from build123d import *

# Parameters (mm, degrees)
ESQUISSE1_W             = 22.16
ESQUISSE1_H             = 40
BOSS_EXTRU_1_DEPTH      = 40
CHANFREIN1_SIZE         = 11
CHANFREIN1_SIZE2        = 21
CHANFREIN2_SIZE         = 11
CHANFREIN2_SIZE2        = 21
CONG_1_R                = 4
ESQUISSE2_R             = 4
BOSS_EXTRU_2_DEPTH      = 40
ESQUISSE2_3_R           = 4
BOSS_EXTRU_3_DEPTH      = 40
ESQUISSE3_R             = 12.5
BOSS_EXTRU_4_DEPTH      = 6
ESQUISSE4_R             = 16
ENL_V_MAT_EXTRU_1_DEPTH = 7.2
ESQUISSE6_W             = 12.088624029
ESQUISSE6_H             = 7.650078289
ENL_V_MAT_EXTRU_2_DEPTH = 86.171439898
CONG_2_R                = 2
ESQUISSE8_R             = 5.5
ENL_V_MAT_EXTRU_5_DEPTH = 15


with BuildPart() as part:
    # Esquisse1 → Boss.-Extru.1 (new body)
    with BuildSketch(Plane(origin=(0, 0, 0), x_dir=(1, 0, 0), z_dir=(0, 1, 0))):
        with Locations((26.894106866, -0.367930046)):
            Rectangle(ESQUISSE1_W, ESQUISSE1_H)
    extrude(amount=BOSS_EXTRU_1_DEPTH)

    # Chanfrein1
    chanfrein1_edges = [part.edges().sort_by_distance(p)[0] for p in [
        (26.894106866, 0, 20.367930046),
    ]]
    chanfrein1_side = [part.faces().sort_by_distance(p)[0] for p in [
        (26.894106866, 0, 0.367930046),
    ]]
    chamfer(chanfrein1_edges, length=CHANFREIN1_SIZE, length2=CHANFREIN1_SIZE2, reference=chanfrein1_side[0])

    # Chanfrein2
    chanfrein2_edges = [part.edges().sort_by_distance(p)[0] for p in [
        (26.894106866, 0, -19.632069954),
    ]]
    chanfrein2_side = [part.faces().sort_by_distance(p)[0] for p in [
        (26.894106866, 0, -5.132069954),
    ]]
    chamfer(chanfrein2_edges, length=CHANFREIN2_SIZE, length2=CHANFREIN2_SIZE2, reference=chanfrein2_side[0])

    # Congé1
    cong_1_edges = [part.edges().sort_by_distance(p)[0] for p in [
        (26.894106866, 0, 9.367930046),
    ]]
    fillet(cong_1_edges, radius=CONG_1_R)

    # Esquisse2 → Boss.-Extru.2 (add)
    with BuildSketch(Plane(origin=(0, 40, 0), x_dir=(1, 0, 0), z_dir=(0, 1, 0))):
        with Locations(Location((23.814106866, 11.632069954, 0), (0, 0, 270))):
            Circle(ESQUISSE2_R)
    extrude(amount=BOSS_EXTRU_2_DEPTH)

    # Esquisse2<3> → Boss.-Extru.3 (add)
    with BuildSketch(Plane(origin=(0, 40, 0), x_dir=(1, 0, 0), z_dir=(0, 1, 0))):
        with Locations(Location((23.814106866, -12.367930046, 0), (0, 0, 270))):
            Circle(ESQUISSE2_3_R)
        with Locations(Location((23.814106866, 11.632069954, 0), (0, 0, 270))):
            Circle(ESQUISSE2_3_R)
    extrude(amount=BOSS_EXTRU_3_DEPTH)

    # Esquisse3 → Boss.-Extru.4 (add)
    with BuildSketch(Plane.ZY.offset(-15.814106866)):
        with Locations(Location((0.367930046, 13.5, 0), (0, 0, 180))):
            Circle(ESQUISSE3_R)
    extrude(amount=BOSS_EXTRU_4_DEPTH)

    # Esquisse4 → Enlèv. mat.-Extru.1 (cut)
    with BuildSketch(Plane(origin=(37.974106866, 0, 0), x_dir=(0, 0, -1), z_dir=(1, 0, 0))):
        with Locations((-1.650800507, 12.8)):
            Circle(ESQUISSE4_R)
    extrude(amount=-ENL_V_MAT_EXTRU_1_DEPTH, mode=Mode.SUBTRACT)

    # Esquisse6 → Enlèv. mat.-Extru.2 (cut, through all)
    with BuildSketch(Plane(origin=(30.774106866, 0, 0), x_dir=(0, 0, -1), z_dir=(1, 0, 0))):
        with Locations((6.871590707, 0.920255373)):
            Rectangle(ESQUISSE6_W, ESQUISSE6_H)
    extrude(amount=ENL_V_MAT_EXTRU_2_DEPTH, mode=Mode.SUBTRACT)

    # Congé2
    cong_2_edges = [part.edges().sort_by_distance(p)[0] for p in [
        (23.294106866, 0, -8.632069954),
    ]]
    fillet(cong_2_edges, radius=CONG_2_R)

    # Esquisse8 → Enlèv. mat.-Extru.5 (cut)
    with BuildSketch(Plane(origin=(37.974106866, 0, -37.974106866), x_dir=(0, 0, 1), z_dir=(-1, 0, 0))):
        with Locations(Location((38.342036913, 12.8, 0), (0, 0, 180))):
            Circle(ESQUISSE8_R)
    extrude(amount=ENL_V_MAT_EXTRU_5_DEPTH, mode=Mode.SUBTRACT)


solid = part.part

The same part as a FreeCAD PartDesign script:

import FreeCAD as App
import Part
import Sketcher
from FreeCAD import Vector
Q = App.Units.Quantity


def edges_at(feature, points):
    """Names of the edges that pass closest to the given points."""
    edges = feature.Shape.Edges
    near = lambda p: min(range(len(edges)), key=lambda i: edges[i].distToShape(Part.Vertex(*p))[0])
    return sorted({f"Edge{near(p) + 1}" for p in points})


def add_polygon(sketch, points):
    """Adds a closed chain of lines whose ends are joined by coincident constraints."""
    first, n = sketch.GeometryCount, len(points)
    for a, b in zip(points, points[1:] + points[:1]):
        sketch.addGeometry(Part.LineSegment(App.Vector(*a, 0), App.Vector(*b, 0)), False)
    for i in range(n):
        sketch.addConstraint(Sketcher.Constraint("Coincident", first + i, 2, first + (i + 1) % n, 1))

doc = App.newDocument("Part")
params = doc.addObject("Spreadsheet::Sheet", "Params")
for row, (alias, value) in enumerate([
    ("sketch1_height", "40 mm"),
    ("sketch1_width", "22.16 mm"),
    ("pad1_length", "40 mm"),
    ("chamfer_size", "11 mm"),
    ("chamfer_size2", "21 mm"),
    ("chamfer2_size", "11 mm"),
    ("chamfer2_size2", "21 mm"),
    ("fillet_radius", "4 mm"),
    ("sketch2_diameter", "8 mm"),
    ("pad2_length", "40 mm"),
    ("sketch3_diameter", "8 mm"),
    ("pad3_length", "40 mm"),
    ("sketch4_diameter", "25 mm"),
    ("pad4_length", "6 mm"),
    ("sketch5_diameter", "32 mm"),
    ("pocket1_length", "7.2 mm"),
    ("fillet2_radius", "2 mm"),
    ("sketch7_diameter", "11 mm"),
    ("pocket3_length", "15 mm"),
], start=1):
    params.set(f"A{row}", alias)
    params.set(f"B{row}", "=" + value)
    params.setAlias(f"B{row}", alias)

body = doc.addObject("PartDesign::Body", "Body")

# Sketch on XZ plane
sketch1 = body.newObject("Sketcher::SketchObject", "Sketch")
sketch1.AttachmentSupport = (doc.getObject("XZ_Plane"), [""])
sketch1.MapMode = "FlatFace"
add_polygon(sketch1, [(16, -20), (16, 20), (38, 20), (38, -20)])  # lines 0-3
sketch1.addConstraint([
    Sketcher.Constraint("Vertical", 0),
    Sketcher.Constraint("Horizontal", 1),
    Sketcher.Constraint("Vertical", 2),
    Sketcher.Constraint("Horizontal", 3),
    Sketcher.Constraint("DistanceY", 0, 1, 0, 2, Q("40 mm")),
    Sketcher.Constraint("DistanceX", 1, 1, 1, 2, Q("22.16 mm")),
    Sketcher.Constraint("DistanceY", -1, 1, 0, 2, Q("20.36793 mm")),
    Sketcher.Constraint("DistanceX", -1, 1, 0, 2, Q("15.814107 mm")),
])
sketch1.setExpression("Constraints[8]", "Params.sketch1_height")
sketch1.setExpression("Constraints[9]", "Params.sketch1_width")
pad1 = body.newObject("PartDesign::Pad", "Pad")
pad1.Profile = sketch1
pad1.setExpression("Length", "Params.pad1_length")
pad1.Reversed = True
doc.recompute()

chamfer = body.newObject("PartDesign::Chamfer", "Chamfer")
chamfer.Base = (pad1, edges_at(pad1, [(26.894, 0, 20.368)]))
chamfer.ChamferType = "Two distances"
chamfer.setExpression("Size", "Params.chamfer_size")
chamfer.setExpression("Size2", "Params.chamfer_size2")
chamfer.FlipDirection = True
doc.recompute()

chamfer2 = body.newObject("PartDesign::Chamfer", "Chamfer001")
chamfer2.Base = (chamfer, edges_at(chamfer, [(26.894, 0, -19.632)]))
chamfer2.ChamferType = "Two distances"
chamfer2.setExpression("Size", "Params.chamfer2_size")
chamfer2.setExpression("Size2", "Params.chamfer2_size2")
doc.recompute()

fillet = body.newObject("PartDesign::Fillet", "Fillet")
fillet.Base = (chamfer2, edges_at(chamfer2, [(26.894, 0, 9.368)]))
fillet.setExpression("Radius", "Params.fillet_radius")

# Sketch on XZ plane
sketch2 = body.newObject("Sketcher::SketchObject", "Sketch001")
sketch2.AttachmentSupport = (doc.getObject("XZ_Plane"), [""])
sketch2.MapMode = "FlatFace"
sketch2.AttachmentOffset = App.Placement(Vector(0, 0, -40), App.Rotation())
sketch2.addGeometry(Part.Circle(Vector(23.8, -11.6, 0), Vector(0, 0, 1), 4), False)
sketch2.addConstraint([
    Sketcher.Constraint("Diameter", 0, Q("8 mm")),
    Sketcher.Constraint("DistanceY", 0, 3, -1, 1, Q("11.63207 mm")),
    Sketcher.Constraint("DistanceX", -1, 1, 0, 3, Q("23.814107 mm")),
])
sketch2.setExpression("Constraints[0]", "Params.sketch2_diameter")
pad2 = body.newObject("PartDesign::Pad", "Pad001")
pad2.Profile = sketch2
pad2.setExpression("Length", "Params.pad2_length")
pad2.Reversed = True

# Sketch on XZ plane
sketch3 = body.newObject("Sketcher::SketchObject", "Sketch002")
sketch3.AttachmentSupport = (doc.getObject("XZ_Plane"), [""])
sketch3.MapMode = "FlatFace"
sketch3.AttachmentOffset = App.Placement(Vector(0, 0, -40), App.Rotation())
sketch3.addGeometry([
    Part.Circle(Vector(23.8, 12.4, 0), Vector(0, 0, 1), 4),
    Part.Circle(Vector(23.8, -11.6, 0), Vector(0, 0, 1), 4),
], False)
sketch3.addConstraint([
    Sketcher.Constraint("Equal", 0, 1),
    Sketcher.Constraint("Vertical", 0, 3, 1, 3),
    Sketcher.Constraint("Diameter", 0, Q("8 mm")),
    Sketcher.Constraint("DistanceY", 1, 3, 0, 3, Q("24 mm")),
    Sketcher.Constraint("DistanceY", -1, 1, 0, 3, Q("12.36793 mm")),
    Sketcher.Constraint("DistanceX", -1, 1, 0, 3, Q("23.814107 mm")),
])
sketch3.setExpression("Constraints[2]", "Params.sketch3_diameter")
pad3 = body.newObject("PartDesign::Pad", "Pad002")
pad3.Profile = sketch3
pad3.setExpression("Length", "Params.pad3_length")
pad3.Reversed = True

# Sketch on YZ plane
sketch4 = body.newObject("Sketcher::SketchObject", "Sketch003")
sketch4.AttachmentSupport = (doc.getObject("YZ_Plane"), [""])
sketch4.MapMode = "FlatFace"
sketch4.AttachmentOffset = App.Placement(Vector(0, 0, 15.814107), App.Rotation())
sketch4.addGeometry(Part.Circle(Vector(14, 0, 0), Vector(0, 0, 1), 12), False)
sketch4.addConstraint([
    Sketcher.Constraint("Diameter", 0, Q("25 mm")),
    Sketcher.Constraint("DistanceX", -1, 1, 0, 3, Q("13.5 mm")),
    Sketcher.Constraint("DistanceY", -1, 1, 0, 3, Q("0.36793 mm")),
])
sketch4.setExpression("Constraints[0]", "Params.sketch4_diameter")
pad4 = body.newObject("PartDesign::Pad", "Pad003")
pad4.Profile = sketch4
pad4.setExpression("Length", "Params.pad4_length")
pad4.Reversed = True

# Sketch on YZ plane
sketch5 = body.newObject("Sketcher::SketchObject", "Sketch004")
sketch5.AttachmentSupport = (doc.getObject("YZ_Plane"), [""])
sketch5.MapMode = "FlatFace"
sketch5.AttachmentOffset = App.Placement(Vector(0, 0, 37.974107), App.Rotation())
sketch5.addGeometry(Part.Circle(Vector(13, 2, 0), Vector(0, 0, 1), 16), False)
sketch5.addConstraint([
    Sketcher.Constraint("Diameter", 0, Q("32 mm")),
    Sketcher.Constraint("DistanceX", -1, 1, 0, 3, Q("12.8 mm")),
    Sketcher.Constraint("DistanceY", -1, 1, 0, 3, Q("1.650801 mm")),
])
sketch5.setExpression("Constraints[0]", "Params.sketch5_diameter")
pocket1 = body.newObject("PartDesign::Pocket", "Pocket")
pocket1.Profile = sketch5
pocket1.setExpression("Length", "Params.pocket1_length")

# Sketch on YZ plane
sketch6 = body.newObject("Sketcher::SketchObject", "Sketch005")
sketch6.AttachmentSupport = (doc.getObject("YZ_Plane"), [""])
sketch6.MapMode = "FlatFace"
sketch6.AttachmentOffset = App.Placement(Vector(0, 0, 30.774107), App.Rotation())
add_polygon(sketch6, [(5, -1), (-3, -1), (-3, -13), (5, -13)])  # lines 0-3
sketch6.addConstraint([
    Sketcher.Constraint("Horizontal", 0),
    Sketcher.Constraint("Vertical", 1),
    Sketcher.Constraint("Horizontal", 2),
    Sketcher.Constraint("Vertical", 3),
    Sketcher.Constraint("DistanceX", 0, 2, 0, 1, Q("7.650078 mm")),
    Sketcher.Constraint("DistanceY", 1, 2, 1, 1, Q("12.088624 mm")),
    Sketcher.Constraint("DistanceY", 0, 2, -1, 1, Q("0.827279 mm")),
    Sketcher.Constraint("DistanceX", 0, 2, -1, 1, Q("2.904784 mm")),
])
pocket2 = body.newObject("PartDesign::Pocket", "Pocket001")
pocket2.Profile = sketch6
pocket2.Type = "ThroughAll"
pocket2.Reversed = True
doc.recompute()

fillet2 = body.newObject("PartDesign::Fillet", "Fillet001")
fillet2.Base = (pocket2, edges_at(pocket2, [(23.294, 0, -8.632)]))
fillet2.setExpression("Radius", "Params.fillet2_radius")

# Sketch on YZ plane
sketch7 = body.newObject("Sketcher::SketchObject", "Sketch006")
sketch7.AttachmentSupport = (doc.getObject("YZ_Plane"), [""])
sketch7.MapMode = "FlatFace"
sketch7.AttachmentOffset = App.Placement(Vector(0, 0, 37.974107), App.Rotation())
sketch7.addGeometry(Part.Circle(Vector(13, 0, 0), Vector(0, 0, 1), 6), False)
sketch7.addConstraint([
    Sketcher.Constraint("Diameter", 0, Q("11 mm")),
    Sketcher.Constraint("DistanceX", -1, 1, 0, 3, Q("12.8 mm")),
    Sketcher.Constraint("DistanceY", -1, 1, 0, 3, Q("0.36793 mm")),
])
sketch7.setExpression("Constraints[0]", "Params.sketch7_diameter")
pocket3 = body.newObject("PartDesign::Pocket", "Pocket002")
pocket3.Profile = sketch7
pocket3.setExpression("Length", "Params.pocket3_length")

doc.recompute()
